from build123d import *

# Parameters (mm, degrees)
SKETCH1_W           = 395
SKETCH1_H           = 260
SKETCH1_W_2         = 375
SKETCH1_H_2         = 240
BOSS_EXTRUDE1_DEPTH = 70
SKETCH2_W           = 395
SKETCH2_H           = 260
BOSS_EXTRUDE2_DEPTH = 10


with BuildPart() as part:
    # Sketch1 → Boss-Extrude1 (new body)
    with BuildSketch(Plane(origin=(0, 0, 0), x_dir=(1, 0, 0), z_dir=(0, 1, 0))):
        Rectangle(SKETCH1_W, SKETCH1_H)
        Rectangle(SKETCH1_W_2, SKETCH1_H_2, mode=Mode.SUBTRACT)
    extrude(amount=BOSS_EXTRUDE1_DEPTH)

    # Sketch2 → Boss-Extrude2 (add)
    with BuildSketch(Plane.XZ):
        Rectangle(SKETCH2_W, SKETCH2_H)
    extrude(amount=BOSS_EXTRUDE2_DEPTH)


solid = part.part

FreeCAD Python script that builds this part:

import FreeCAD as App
import Part
import Sketcher

V = App.Vector

doc = App.newDocument("Part")
body = doc.addObject("PartDesign::Body", "Body")

# Sketch on XZ plane
sketch1 = body.newObject("Sketcher::SketchObject", "Sketch")
sketch1.AttachmentSupport = (doc.getObject("XZ_Plane"), [""])
sketch1.MapMode = "FlatFace"
sketch1.addGeometry([
    Part.LineSegment(V(-197.5, -130, 0), V(-197.5, 130, 0)),  # 0
    Part.LineSegment(V(-197.5, 130, 0), V(197.5, 130, 0)),  # 1
    Part.LineSegment(V(197.5, 130, 0), V(197.5, -130, 0)),  # 2
    Part.LineSegment(V(197.5, -130, 0), V(-197.5, -130, 0)),  # 3
    Part.LineSegment(V(187.5, 120, 0), V(-187.5, 120, 0)),  # 4
    Part.LineSegment(V(-187.5, 120, 0), V(-187.5, -120, 0)),  # 5
    Part.LineSegment(V(-187.5, -120, 0), V(187.5, -120, 0)),  # 6
    Part.LineSegment(V(187.5, -120, 0), V(187.5, 120, 0)),  # 7
], False)
sketch1.addConstraint([
    Sketcher.Constraint("Coincident", 0, 2, 1, 1),
    Sketcher.Constraint("Coincident", 1, 2, 2, 1),
    Sketcher.Constraint("Coincident", 2, 2, 3, 1),
    Sketcher.Constraint("Coincident", 3, 2, 0, 1),
    Sketcher.Constraint("Coincident", 4, 2, 5, 1),
    Sketcher.Constraint("Coincident", 5, 2, 6, 1),
    Sketcher.Constraint("Coincident", 6, 2, 7, 1),
    Sketcher.Constraint("Coincident", 7, 2, 4, 1),
    Sketcher.Constraint("Vertical", 0),
    Sketcher.Constraint("Horizontal", 1),
    Sketcher.Constraint("Vertical", 2),
    Sketcher.Constraint("Horizontal", 3),
    Sketcher.Constraint("Horizontal", 4),
    Sketcher.Constraint("Vertical", 5),
    Sketcher.Constraint("Horizontal", 6),
    Sketcher.Constraint("Vertical", 7),
    Sketcher.Constraint("Symmetric", 0, 2, 2, 2, -1, 1),
    Sketcher.Constraint("Symmetric", 4, 2, 6, 2, -1, 1),
    Sketcher.Constraint("DistanceX", 1, 1, 1, 2, 395.0),
    Sketcher.Constraint("DistanceX", 4, 2, 4, 1, 375.0),
    Sketcher.Constraint("DistanceY", 0, 1, 0, 2, 260.0),
    Sketcher.Constraint("DistanceY", 5, 2, 5, 1, 240.0),
])
pad1 = body.newObject("PartDesign::Pad", "Pad")
pad1.Profile = sketch1
pad1.Length = 70
pad1.Reversed = True

# Sketch on XZ plane
sketch2 = body.newObject("Sketcher::SketchObject", "Sketch001")
sketch2.AttachmentSupport = (doc.getObject("XZ_Plane"), [""])
sketch2.MapMode = "FlatFace"
sketch2.addGeometry([
    Part.LineSegment(V(-197.5, 130, 0), V(-197.5, -130, 0)),
    Part.LineSegment(V(-197.5, -130, 0), V(197.5, -130, 0)),
    Part.LineSegment(V(197.5, -130, 0), V(197.5, 130, 0)),
    Part.LineSegment(V(197.5, 130, 0), V(-197.5, 130, 0)),
], False)
sketch2.addConstraint([
    Sketcher.Constraint("Coincident", 0, 2, 1, 1),
    Sketcher.Constraint("Coincident", 1, 2, 2, 1),
    Sketcher.Constraint("Coincident", 2, 2, 3, 1),
    Sketcher.Constraint("Coincident", 3, 2, 0, 1),
    Sketcher.Constraint("Vertical", 0),
    Sketcher.Constraint("Horizontal", 1),
    Sketcher.Constraint("Vertical", 2),
    Sketcher.Constraint("Horizontal", 3),
    Sketcher.Constraint("Symmetric", 0, 2, 2, 2, -1, 1),
    Sketcher.Constraint("DistanceX", 1, 1, 1, 2, 395.0),
    Sketcher.Constraint("DistanceY", 0, 2, 0, 1, 260.0),
])
pad2 = body.newObject("PartDesign::Pad", "Pad001")
pad2.Profile = sketch2
pad2.Length = 10

doc.recompute()
